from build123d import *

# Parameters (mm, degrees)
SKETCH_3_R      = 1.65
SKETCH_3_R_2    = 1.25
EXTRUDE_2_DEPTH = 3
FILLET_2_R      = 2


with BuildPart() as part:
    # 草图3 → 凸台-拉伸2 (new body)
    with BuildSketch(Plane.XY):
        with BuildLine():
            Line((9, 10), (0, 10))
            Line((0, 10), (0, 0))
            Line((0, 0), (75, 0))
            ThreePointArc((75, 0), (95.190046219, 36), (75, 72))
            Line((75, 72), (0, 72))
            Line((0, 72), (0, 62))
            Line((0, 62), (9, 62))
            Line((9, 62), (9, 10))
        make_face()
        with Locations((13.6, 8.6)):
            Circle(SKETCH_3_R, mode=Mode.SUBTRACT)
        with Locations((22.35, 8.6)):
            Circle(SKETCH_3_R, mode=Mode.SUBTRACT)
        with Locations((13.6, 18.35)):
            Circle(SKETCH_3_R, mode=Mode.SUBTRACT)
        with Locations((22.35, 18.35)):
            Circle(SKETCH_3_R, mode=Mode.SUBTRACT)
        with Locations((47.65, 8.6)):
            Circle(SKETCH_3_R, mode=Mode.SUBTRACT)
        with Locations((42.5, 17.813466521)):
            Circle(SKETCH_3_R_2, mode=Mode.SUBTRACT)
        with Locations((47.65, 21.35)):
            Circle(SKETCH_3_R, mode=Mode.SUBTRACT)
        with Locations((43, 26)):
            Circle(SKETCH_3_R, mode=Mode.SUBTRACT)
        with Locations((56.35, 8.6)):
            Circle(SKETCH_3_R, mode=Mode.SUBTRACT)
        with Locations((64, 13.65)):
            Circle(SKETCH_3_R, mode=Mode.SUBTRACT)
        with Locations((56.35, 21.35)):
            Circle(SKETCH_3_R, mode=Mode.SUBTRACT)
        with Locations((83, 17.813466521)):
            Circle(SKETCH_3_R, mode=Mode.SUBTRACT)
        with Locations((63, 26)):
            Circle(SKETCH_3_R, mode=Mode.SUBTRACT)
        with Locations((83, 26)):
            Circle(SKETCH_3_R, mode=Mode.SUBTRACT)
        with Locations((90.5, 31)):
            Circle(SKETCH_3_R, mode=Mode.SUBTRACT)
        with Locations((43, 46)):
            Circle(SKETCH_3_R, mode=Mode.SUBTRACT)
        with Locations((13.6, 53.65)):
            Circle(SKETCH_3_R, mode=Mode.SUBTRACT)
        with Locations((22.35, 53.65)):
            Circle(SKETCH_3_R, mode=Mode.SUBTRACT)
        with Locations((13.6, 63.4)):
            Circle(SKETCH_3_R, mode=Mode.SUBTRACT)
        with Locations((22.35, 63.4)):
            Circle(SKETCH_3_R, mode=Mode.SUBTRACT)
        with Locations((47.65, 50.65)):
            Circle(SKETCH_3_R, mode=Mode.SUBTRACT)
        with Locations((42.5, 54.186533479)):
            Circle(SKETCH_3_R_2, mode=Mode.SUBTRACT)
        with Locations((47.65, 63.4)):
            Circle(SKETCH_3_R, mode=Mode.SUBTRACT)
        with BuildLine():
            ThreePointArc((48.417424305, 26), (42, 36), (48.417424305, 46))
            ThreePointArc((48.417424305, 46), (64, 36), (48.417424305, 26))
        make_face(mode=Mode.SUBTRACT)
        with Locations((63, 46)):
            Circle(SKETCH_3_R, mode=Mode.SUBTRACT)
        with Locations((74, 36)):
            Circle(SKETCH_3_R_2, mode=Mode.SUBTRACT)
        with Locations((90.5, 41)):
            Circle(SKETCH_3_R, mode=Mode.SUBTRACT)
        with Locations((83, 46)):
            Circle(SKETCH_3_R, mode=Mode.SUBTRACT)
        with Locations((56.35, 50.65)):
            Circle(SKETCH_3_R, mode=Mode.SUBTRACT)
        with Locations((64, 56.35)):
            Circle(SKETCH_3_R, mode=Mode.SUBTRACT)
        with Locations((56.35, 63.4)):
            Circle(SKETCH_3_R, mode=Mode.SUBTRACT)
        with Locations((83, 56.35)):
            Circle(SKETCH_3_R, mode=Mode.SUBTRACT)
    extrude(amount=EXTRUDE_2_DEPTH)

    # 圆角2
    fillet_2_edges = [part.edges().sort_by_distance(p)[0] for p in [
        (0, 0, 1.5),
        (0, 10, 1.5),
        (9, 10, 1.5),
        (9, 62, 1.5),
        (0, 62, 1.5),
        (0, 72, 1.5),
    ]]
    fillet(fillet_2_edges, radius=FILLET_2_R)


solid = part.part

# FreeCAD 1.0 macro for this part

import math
import FreeCAD as App
import Part
import Sketcher

V = App.Vector


def edges_at(feature, points):
    """Names of the edges that pass closest to the given points."""
    edges = feature.Shape.Edges
    near = lambda p: min(range(len(edges)), key=lambda i: edges[i].distToShape(Part.Vertex(*p))[0])
    return sorted({f"Edge{near(p) + 1}" for p in points})

doc = App.newDocument("Part")
params = doc.addObject("Spreadsheet::Sheet", "Params")
for row, (alias, value) in enumerate([
    ("sketch1_radius", "11 mm"),
    ("sketch1_diameter", "3.3 mm"),
    ("sketch1_diameter2", "2.5 mm"),
    ("sketch1_width", "9 mm"),
    ("sketch1_width2", "75 mm"),
    ("pad1_length", "3 mm"),
    ("fillet_radius", "2 mm"),
], start=1):
    params.set(f"A{row}", alias)
    params.set(f"B{row}", "=" + value)
    params.setAlias(f"B{row}", alias)

body = doc.addObject("PartDesign::Body", "Body")

# Sketch on XY plane
sketch1 = body.newObject("Sketcher::SketchObject", "Sketch")
sketch1.AttachmentSupport = (doc.getObject("XY_Plane"), [""])
sketch1.MapMode = "FlatFace"
sketch1.addGeometry([
    Part.LineSegment(V(9, 10, 0), V(0, 10, 0)),  # 0
    Part.LineSegment(V(0, 10, 0), V(0, 0, 0)),  # 1
    Part.LineSegment(V(0, 0, 0), V(75, 0, 0)),  # 2
    Part.ArcOfCircle(Part.Circle(V(53, 36, 0), V(0, 0, 1), 42.190046), math.radians(-58.570434), math.radians(58.570434)),  # 3
    Part.LineSegment(V(75, 72, 0), V(0, 72, 0)),  # 4
    Part.LineSegment(V(0, 72, 0), V(0, 62, 0)),  # 5
    Part.LineSegment(V(0, 62, 0), V(9, 62, 0)),  # 6
    Part.LineSegment(V(9, 62, 0), V(9, 10, 0)),  # 7
    Part.Circle(V(13.6, 8.6, 0), V(0, 0, 1), 1.65),  # 8
    Part.Circle(V(22.35, 8.6, 0), V(0, 0, 1), 1.65),  # 9
    Part.Circle(V(13.6, 18.35, 0), V(0, 0, 1), 1.65),  # 10
    Part.Circle(V(22.35, 18.35, 0), V(0, 0, 1), 1.65),  # 11
    Part.Circle(V(47.65, 8.6, 0), V(0, 0, 1), 1.65),  # 12
    Part.Circle(V(42.5, 17.813467, 0), V(0, 0, 1), 1.25),  # 13
    Part.Circle(V(47.65, 21.35, 0), V(0, 0, 1), 1.65),  # 14
    Part.Circle(V(43, 26, 0), V(0, 0, 1), 1.65),  # 15
    Part.Circle(V(56.35, 8.6, 0), V(0, 0, 1), 1.65),  # 16
    Part.Circle(V(64, 13.65, 0), V(0, 0, 1), 1.65),  # 17
    Part.Circle(V(56.35, 21.35, 0), V(0, 0, 1), 1.65),  # 18
    Part.Circle(V(83, 17.813467, 0), V(0, 0, 1), 1.65),  # 19
    Part.Circle(V(63, 26, 0), V(0, 0, 1), 1.65),  # 20
    Part.Circle(V(83, 26, 0), V(0, 0, 1), 1.65),  # 21
    Part.Circle(V(90.5, 31, 0), V(0, 0, 1), 1.65),  # 22
    Part.Circle(V(43, 46, 0), V(0, 0, 1), 1.65),  # 23
    Part.Circle(V(13.6, 53.65, 0), V(0, 0, 1), 1.65),  # 24
    Part.Circle(V(22.35, 53.65, 0), V(0, 0, 1), 1.65),  # 25
    Part.Circle(V(13.6, 63.4, 0), V(0, 0, 1), 1.65),  # 26
    Part.Circle(V(22.35, 63.4, 0), V(0, 0, 1), 1.65),  # 27
    Part.Circle(V(47.65, 50.65, 0), V(0, 0, 1), 1.65),  # 28
    Part.Circle(V(42.5, 54.186533, 0), V(0, 0, 1), 1.25),  # 29
    Part.Circle(V(47.65, 63.4, 0), V(0, 0, 1), 1.65),  # 30
    Part.ArcOfCircle(Part.Circle(V(53, 36, 0), V(0, 0, 1), 11), math.radians(-114.619977), math.radians(114.619977)),  # 31
    Part.ArcOfCircle(Part.Circle(V(53, 36, 0), V(0, 0, 1), 11), math.radians(114.619977), math.radians(245.380023)),  # 32
    Part.Circle(V(63, 46, 0), V(0, 0, 1), 1.65),  # 33
    Part.Circle(V(74, 36, 0), V(0, 0, 1), 1.25),  # 34
    Part.Circle(V(90.5, 41, 0), V(0, 0, 1), 1.65),  # 35
    Part.Circle(V(83, 46, 0), V(0, 0, 1), 1.65),  # 36
    Part.Circle(V(56.35, 50.65, 0), V(0, 0, 1), 1.65),  # 37
    Part.Circle(V(64, 56.35, 0), V(0, 0, 1), 1.65),  # 38
    Part.Circle(V(56.35, 63.4, 0), V(0, 0, 1), 1.65),  # 39
    Part.Circle(V(83, 56.35, 0), V(0, 0, 1), 1.65),  # 40
], False)
sketch1.addConstraint([
    Sketcher.Constraint("Coincident", 0, 2, 1, 1),
    Sketcher.Constraint("Coincident", 1, 2, 2, 1),
    Sketcher.Constraint("Coincident", 2, 2, 3, 1),
    Sketcher.Constraint("Coincident", 3, 2, 4, 1),
    Sketcher.Constraint("Coincident", 4, 2, 5, 1),
    Sketcher.Constraint("Coincident", 5, 2, 6, 1),
    Sketcher.Constraint("Coincident", 6, 2, 7, 1),
    Sketcher.Constraint("Coincident", 7, 2, 0, 1),
    Sketcher.Constraint("Tangent", 31, 1, 32, 2),
    Sketcher.Constraint("Coincident", 32, 1, 31, 2),
    Sketcher.Constraint("Horizontal", 0),
    Sketcher.Constraint("Vertical", 1),
    Sketcher.Constraint("Horizontal", 2),
    Sketcher.Constraint("Horizontal", 4),
    Sketcher.Constraint("Vertical", 5),
    Sketcher.Constraint("Horizontal", 6),
    Sketcher.Constraint("Vertical", 7),
    Sketcher.Constraint("Coincident", 1, 2, -1, 1),
    Sketcher.Constraint("Coincident", 31, 3, 3, 3),
    Sketcher.Constraint("Equal", 8, 9),
    Sketcher.Constraint("Equal", 9, 10),
    Sketcher.Constraint("Equal", 10, 11),
    Sketcher.Constraint("Equal", 11, 12),
    Sketcher.Constraint("Equal", 12, 14),
    Sketcher.Constraint("Equal", 14, 15),
    Sketcher.Constraint("Equal", 15, 16),
    Sketcher.Constraint("Equal", 16, 17),
    Sketcher.Constraint("Equal", 17, 18),
    Sketcher.Constraint("Equal", 18, 19),
    Sketcher.Constraint("Equal", 19, 20),
    Sketcher.Constraint("Equal", 20, 21),
    Sketcher.Constraint("Equal", 21, 22),
    Sketcher.Constraint("Equal", 22, 23),
    Sketcher.Constraint("Equal", 23, 24),
    Sketcher.Constraint("Equal", 24, 25),
    Sketcher.Constraint("Equal", 25, 26),
    Sketcher.Constraint("Equal", 26, 27),
    Sketcher.Constraint("Equal", 27, 28),
    Sketcher.Constraint("Equal", 13, 29),
    Sketcher.Constraint("Equal", 28, 30),
    Sketcher.Constraint("Equal", 30, 33),
    Sketcher.Constraint("Equal", 29, 34),
    Sketcher.Constraint("Equal", 33, 35),
    Sketcher.Constraint("Equal", 35, 36),
    Sketcher.Constraint("Equal", 36, 37),
    Sketcher.Constraint("Equal", 37, 38),
    Sketcher.Constraint("Equal", 38, 39),
    Sketcher.Constraint("Equal", 39, 40),
    Sketcher.Constraint("PointOnObject", 4, 2, -2),
    Sketcher.Constraint("Horizontal", 8, 3, 9, 3),
    Sketcher.Constraint("Horizontal", 10, 3, 11, 3),
    Sketcher.Constraint("Horizontal", 9, 3, 12, 3),
    Sketcher.Constraint("Horizontal", 12, 3, 16, 3),
    Sketcher.Constraint("Horizontal", 14, 3, 18, 3),
    Sketcher.Constraint("Horizontal", 13, 3, 19, 3),
    Sketcher.Constraint("Horizontal", 15, 3, 20, 3),
    Sketcher.Constraint("Horizontal", 20, 3, 21, 3),
    Sketcher.Constraint("Horizontal", 24, 3, 25, 3),
    Sketcher.Constraint("Horizontal", 26, 3, 27, 3),
    Sketcher.Constraint("Horizontal", 27, 3, 30, 3),
    Sketcher.Constraint("Horizontal", 23, 3, 33, 3),
    Sketcher.Constraint("Horizontal", 32, 3, 34, 3),
    Sketcher.Constraint("Horizontal", 33, 3, 36, 3),
    Sketcher.Constraint("Horizontal", 28, 3, 37, 3),
    Sketcher.Constraint("Horizontal", 30, 3, 39, 3),
    Sketcher.Constraint("Horizontal", 38, 3, 40, 3),
    Sketcher.Constraint("Horizontal", 21, 3, 31, 1),
    Sketcher.Constraint("Horizontal", 36, 3, 32, 1),
    Sketcher.Constraint("Vertical", 8, 3, 10, 3),
    Sketcher.Constraint("Vertical", 9, 3, 11, 3),
    Sketcher.Constraint("Vertical", 12, 3, 14, 3),
    Sketcher.Constraint("Vertical", 16, 3, 18, 3),
    Sketcher.Constraint("Vertical", 19, 3, 21, 3),
    Sketcher.Constraint("Vertical", 15, 3, 23, 3),
    Sketcher.Constraint("Vertical", 10, 3, 24, 3),
    Sketcher.Constraint("Vertical", 11, 3, 25, 3),
    Sketcher.Constraint("Vertical", 24, 3, 26, 3),
    Sketcher.Constraint("Vertical", 25, 3, 27, 3),
    Sketcher.Constraint("Vertical", 14, 3, 28, 3),
    Sketcher.Constraint("Vertical", 13, 3, 29, 3),
    Sketcher.Constraint("Vertical", 28, 3, 30, 3),
    Sketcher.Constraint("Vertical", 20, 3, 33, 3),
    Sketcher.Constraint("Vertical", 22, 3, 35, 3),
    Sketcher.Constraint("Vertical", 21, 3, 36, 3),
    Sketcher.Constraint("Vertical", 18, 3, 37, 3),
    Sketcher.Constraint("Vertical", 17, 3, 38, 3),
    Sketcher.Constraint("Vertical", 37, 3, 39, 3),
    Sketcher.Constraint("Vertical", 36, 3, 40, 3),
    Sketcher.Constraint("Vertical", 2, 2, 3, 2),
    Sketcher.Constraint("Vertical", 31, 1, 32, 1),
    Sketcher.Constraint("Equal", 1, 5),
    Sketcher.Constraint("Radius", 31, 11.0),
    Sketcher.Constraint("Diameter", 8, 3.3),
    Sketcher.Constraint("Diameter", 13, 2.5),
    Sketcher.Constraint("DistanceX", 0, 2, 0, 1, 9.0),
    Sketcher.Constraint("DistanceX", 2, 1, 2, 2, 75.0),
    Sketcher.Constraint("DistanceY", 1, 2, 1, 1, 10.0),
    Sketcher.Constraint("DistanceY", 7, 2, 7, 1, 52.0),
    Sketcher.Constraint("DistanceX", -1, 1, 3, 3, 53.0),
    Sketcher.Constraint("DistanceX", -1, 1, 15, 3, 43.0),
    Sketcher.Constraint("DistanceY", -1, 1, 15, 3, 26.0),
    Sketcher.Constraint("DistanceX", -1, 1, 17, 3, 64.0),
    Sketcher.Constraint("DistanceX", -1, 1, 19, 3, 83.0),
    Sketcher.Constraint("DistanceX", -1, 1, 20, 3, 63.0),
    Sketcher.Constraint("DistanceY", -1, 1, 22, 3, 31.0),
    Sketcher.Constraint("DistanceX", -1, 1, 34, 3, 74.0),
    Sketcher.Constraint("DistanceY", -1, 1, 35, 3, 41.0),
    Sketcher.Constraint("DistanceY", 11, 3, 14, 3, 3.0),
    Sketcher.Constraint("DistanceY", 28, 3, 25, 3, 3.0),
    Sketcher.Constraint("DistanceX", -1, 1, 8, 3, 13.6),
    Sketcher.Constraint("DistanceY", -1, 1, 8, 3, 8.6),
    Sketcher.Constraint("DistanceX", -1, 1, 13, 3, 42.5),
    Sketcher.Constraint("DistanceX", -1, 1, 22, 3, 90.5),
    Sketcher.Constraint("DistanceY", -1, 1, 26, 3, 63.4),
    Sketcher.Constraint("DistanceX", 9, 3, 12, 3, 25.3),
    Sketcher.Constraint("DistanceX", 12, 3, 16, 3, 8.7),
    Sketcher.Constraint("DistanceY", 17, 3, 14, 3, 7.7),
    Sketcher.Constraint("DistanceY", 10, 3, 24, 3, 35.3),
    Sketcher.Constraint("DistanceY", 37, 3, 38, 3, 5.7),
    Sketcher.Constraint("DistanceX", -1, 1, 9, 3, 22.35),
    Sketcher.Constraint("DistanceY", -1, 1, 10, 3, 18.35),
    Sketcher.Constraint("DistanceY", -1, 1, 13, 3, 17.813467),
    Sketcher.Constraint("DistanceY", -1, 1, 29, 3, 54.186533),
])
sketch1.setExpression("Constraints[91]", "Params.sketch1_radius")
sketch1.setExpression("Constraints[92]", "Params.sketch1_diameter")
sketch1.setExpression("Constraints[93]", "Params.sketch1_diameter2")
sketch1.setExpression("Constraints[94]", "Params.sketch1_width")
sketch1.setExpression("Constraints[95]", "Params.sketch1_width2")
pad1 = body.newObject("PartDesign::Pad", "Pad")
pad1.Profile = sketch1
pad1.setExpression("Length", "Params.pad1_length")
doc.recompute()

fillet = body.newObject("PartDesign::Fillet", "Fillet")
fillet.Base = (pad1, edges_at(pad1, [
    (0, 0, 1.5),
    (0, 10, 1.5),
    (9, 10, 1.5),
    (9, 62, 1.5),
    (0, 62, 1.5),
    (0, 72, 1.5),
]))
fillet.setExpression("Radius", "Params.fillet_radius")

doc.recompute()
